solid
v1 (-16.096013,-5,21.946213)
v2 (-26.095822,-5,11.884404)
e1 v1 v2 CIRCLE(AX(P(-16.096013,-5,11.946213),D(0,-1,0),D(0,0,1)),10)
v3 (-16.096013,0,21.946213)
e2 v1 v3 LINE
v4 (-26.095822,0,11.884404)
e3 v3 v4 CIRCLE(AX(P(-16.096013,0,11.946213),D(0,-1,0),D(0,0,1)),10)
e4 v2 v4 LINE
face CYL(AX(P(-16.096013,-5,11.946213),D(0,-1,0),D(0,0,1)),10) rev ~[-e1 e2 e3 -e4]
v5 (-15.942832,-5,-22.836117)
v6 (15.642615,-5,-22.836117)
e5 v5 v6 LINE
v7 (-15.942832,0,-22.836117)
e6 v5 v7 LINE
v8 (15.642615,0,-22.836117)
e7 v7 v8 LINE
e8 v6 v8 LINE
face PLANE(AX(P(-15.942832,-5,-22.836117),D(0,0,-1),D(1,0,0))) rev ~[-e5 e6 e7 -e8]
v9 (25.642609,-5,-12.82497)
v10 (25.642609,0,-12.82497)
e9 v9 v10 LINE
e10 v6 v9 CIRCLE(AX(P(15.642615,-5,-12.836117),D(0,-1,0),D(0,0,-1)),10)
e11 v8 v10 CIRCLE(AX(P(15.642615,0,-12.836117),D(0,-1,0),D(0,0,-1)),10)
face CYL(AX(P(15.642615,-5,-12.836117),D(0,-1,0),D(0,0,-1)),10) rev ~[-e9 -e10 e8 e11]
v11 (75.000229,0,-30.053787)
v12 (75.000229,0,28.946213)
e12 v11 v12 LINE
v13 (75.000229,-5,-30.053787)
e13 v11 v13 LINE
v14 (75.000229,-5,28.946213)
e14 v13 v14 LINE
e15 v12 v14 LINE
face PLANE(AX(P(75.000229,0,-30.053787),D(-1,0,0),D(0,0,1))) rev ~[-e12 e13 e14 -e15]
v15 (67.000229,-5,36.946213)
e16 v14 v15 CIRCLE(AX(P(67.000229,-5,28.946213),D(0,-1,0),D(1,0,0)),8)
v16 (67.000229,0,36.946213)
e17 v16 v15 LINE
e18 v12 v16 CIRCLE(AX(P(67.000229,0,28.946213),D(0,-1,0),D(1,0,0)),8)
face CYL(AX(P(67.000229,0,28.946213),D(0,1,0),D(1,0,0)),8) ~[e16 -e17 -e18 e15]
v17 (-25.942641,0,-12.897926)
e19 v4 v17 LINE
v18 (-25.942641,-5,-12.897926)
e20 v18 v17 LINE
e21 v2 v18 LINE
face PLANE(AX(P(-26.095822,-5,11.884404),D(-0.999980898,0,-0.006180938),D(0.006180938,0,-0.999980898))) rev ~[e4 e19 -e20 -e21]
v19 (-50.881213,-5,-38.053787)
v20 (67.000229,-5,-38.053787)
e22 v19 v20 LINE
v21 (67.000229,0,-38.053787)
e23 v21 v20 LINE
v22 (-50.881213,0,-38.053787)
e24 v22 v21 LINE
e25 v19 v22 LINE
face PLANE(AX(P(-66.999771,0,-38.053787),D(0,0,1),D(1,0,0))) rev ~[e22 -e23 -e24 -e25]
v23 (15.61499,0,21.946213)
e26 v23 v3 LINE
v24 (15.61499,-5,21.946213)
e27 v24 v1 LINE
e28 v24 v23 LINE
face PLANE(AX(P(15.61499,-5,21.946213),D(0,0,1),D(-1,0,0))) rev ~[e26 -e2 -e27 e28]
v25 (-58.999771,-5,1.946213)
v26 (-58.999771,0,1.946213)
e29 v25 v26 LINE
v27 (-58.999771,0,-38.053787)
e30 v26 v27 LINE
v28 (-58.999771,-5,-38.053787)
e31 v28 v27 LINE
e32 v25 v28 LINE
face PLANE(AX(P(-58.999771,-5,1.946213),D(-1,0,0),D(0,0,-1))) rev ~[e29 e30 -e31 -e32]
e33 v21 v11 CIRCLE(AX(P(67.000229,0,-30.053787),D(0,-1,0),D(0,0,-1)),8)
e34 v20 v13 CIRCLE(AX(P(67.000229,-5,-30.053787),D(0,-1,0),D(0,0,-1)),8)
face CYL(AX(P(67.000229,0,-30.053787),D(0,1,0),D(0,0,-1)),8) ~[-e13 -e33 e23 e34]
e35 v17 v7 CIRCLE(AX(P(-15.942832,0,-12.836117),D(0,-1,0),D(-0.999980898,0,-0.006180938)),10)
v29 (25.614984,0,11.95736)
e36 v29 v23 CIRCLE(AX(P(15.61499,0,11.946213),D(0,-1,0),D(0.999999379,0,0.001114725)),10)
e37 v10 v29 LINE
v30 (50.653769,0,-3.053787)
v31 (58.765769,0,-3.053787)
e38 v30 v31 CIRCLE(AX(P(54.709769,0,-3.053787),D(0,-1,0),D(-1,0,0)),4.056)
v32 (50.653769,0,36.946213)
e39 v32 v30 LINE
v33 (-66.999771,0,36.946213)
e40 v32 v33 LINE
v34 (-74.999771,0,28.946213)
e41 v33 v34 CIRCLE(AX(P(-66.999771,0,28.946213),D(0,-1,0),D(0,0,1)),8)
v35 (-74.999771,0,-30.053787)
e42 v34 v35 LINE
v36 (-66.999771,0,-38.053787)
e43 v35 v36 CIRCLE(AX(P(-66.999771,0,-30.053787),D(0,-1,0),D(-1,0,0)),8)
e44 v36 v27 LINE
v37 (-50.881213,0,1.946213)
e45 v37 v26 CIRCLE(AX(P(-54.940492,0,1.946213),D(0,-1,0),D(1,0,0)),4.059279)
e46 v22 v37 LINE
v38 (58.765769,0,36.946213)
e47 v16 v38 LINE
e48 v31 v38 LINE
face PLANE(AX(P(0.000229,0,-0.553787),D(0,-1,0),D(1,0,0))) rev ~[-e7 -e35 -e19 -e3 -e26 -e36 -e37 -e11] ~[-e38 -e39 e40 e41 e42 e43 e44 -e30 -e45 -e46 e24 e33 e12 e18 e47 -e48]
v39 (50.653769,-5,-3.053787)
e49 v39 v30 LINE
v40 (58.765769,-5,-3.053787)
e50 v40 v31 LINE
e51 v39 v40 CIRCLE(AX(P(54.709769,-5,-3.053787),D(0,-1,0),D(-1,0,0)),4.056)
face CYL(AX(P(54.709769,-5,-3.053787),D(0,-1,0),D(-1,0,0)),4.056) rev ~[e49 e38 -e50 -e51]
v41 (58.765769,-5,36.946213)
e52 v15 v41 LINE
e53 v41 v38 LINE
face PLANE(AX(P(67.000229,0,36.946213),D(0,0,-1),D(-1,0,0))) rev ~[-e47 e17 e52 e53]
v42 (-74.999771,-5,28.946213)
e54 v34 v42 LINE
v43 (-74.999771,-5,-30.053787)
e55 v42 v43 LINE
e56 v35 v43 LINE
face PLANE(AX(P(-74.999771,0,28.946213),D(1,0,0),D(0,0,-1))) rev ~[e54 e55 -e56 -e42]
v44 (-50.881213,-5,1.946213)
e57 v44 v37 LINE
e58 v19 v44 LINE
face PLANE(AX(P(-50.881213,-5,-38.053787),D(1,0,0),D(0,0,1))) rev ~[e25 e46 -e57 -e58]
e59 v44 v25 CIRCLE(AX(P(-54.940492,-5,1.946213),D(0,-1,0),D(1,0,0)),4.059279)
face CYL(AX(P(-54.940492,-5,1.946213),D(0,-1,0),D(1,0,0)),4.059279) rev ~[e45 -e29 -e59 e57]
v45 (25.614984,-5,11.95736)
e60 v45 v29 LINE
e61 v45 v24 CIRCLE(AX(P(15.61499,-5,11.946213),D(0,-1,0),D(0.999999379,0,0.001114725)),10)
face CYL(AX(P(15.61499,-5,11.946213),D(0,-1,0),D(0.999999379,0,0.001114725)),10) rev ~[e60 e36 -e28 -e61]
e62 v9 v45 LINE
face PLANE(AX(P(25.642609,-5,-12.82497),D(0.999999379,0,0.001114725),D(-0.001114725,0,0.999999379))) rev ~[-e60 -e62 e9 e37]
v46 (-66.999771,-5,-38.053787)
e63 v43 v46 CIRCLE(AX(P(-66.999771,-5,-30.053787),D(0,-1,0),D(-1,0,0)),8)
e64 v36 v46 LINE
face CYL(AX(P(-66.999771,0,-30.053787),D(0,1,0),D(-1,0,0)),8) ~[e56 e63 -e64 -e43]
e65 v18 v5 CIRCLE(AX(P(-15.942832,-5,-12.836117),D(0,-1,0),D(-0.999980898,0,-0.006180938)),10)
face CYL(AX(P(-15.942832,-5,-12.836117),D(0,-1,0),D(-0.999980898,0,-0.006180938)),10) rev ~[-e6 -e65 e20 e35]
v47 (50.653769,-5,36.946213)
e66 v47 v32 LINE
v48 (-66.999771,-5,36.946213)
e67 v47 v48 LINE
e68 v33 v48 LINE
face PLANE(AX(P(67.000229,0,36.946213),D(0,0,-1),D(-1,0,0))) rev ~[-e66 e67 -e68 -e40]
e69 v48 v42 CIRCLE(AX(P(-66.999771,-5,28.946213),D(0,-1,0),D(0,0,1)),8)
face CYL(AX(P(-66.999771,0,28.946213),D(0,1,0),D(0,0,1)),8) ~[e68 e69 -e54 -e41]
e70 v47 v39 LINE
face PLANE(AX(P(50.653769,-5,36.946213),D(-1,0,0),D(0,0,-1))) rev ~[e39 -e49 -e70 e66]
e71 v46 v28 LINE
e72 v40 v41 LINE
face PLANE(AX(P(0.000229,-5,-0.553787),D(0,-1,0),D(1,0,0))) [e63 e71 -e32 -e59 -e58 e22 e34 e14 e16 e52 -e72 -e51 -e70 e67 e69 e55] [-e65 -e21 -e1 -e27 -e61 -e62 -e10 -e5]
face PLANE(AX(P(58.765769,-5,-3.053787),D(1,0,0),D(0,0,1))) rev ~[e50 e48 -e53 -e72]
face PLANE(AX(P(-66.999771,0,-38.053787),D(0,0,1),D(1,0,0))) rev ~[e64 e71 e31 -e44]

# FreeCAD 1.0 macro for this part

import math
import FreeCAD as App
import Part
import Sketcher
from FreeCAD import Vector

doc = App.newDocument("Part")
body = doc.addObject("PartDesign::Body", "Body")

sketch1 = body.newObject("Sketcher::SketchObject", "Sketch")
sketch1.AttachmentSupport = (doc.getObject("XZ_Plane"), [""])
sketch1.MapMode = "FlatFace"
sketch1.addGeometry(Part.ArcOfCircle(Part.Circle(Vector(-66.999771, 28.946213, 0), Vector(0, 0, 1), 8), math.radians(90), math.radians(180)), False)
sketch1.addGeometry(Part.LineSegment(Vector(-74.999771, 28.946213, 0), Vector(-74.999771, -30.053787, 0)), False)
sketch1.addGeometry(Part.ArcOfCircle(Part.Circle(Vector(-66.999771, -30.053787, 0), Vector(0, 0, 1), 8), math.radians(180), math.radians(270)), False)
sketch1.addGeometry(Part.LineSegment(Vector(-66.999771, -38.053787, 0), Vector(67.000229, -38.053787, 0)), False)
sketch1.addGeometry(Part.ArcOfCircle(Part.Circle(Vector(67.000229, -30.053787, 0), Vector(0, 0, 1), 8), math.radians(-90), math.radians(0)), False)
sketch1.addGeometry(Part.LineSegment(Vector(75.000229, -30.053787, 0), Vector(75.000229, 28.946213, 0)), False)
sketch1.addGeometry(Part.ArcOfCircle(Part.Circle(Vector(67.000229, 28.946213, 0), Vector(0, 0, 1), 8), math.radians(0), math.radians(90)), False)
sketch1.addGeometry(Part.LineSegment(Vector(67.000229, 36.946213, 0), Vector(-66.999771, 36.946213, 0)), False)
sketch1.addConstraint(Sketcher.Constraint("Tangent", 0, 2, 1, 1))
sketch1.addConstraint(Sketcher.Constraint("Tangent", 1, 2, 2, 1))
sketch1.addConstraint(Sketcher.Constraint("Tangent", 2, 2, 3, 1))
sketch1.addConstraint(Sketcher.Constraint("Tangent", 3, 2, 4, 1))
sketch1.addConstraint(Sketcher.Constraint("Tangent", 4, 2, 5, 1))
sketch1.addConstraint(Sketcher.Constraint("Tangent", 5, 2, 6, 1))
sketch1.addConstraint(Sketcher.Constraint("Tangent", 6, 2, 7, 1))
sketch1.addConstraint(Sketcher.Constraint("Tangent", 7, 2, 0, 1))
sketch1.addConstraint(Sketcher.Constraint("Vertical", 1))
sketch1.addConstraint(Sketcher.Constraint("Horizontal", 3))
sketch1.addConstraint(Sketcher.Constraint("Vertical", 5))
sketch1.addConstraint(Sketcher.Constraint("Horizontal", 7))
sketch1.addConstraint(Sketcher.Constraint("Equal", 0, 2))
sketch1.addConstraint(Sketcher.Constraint("Equal", 2, 4))
sketch1.addConstraint(Sketcher.Constraint("Equal", 4, 6))
sketch1.addConstraint(Sketcher.Constraint("Radius", 0, 8.0))
sketch1.addConstraint(Sketcher.Constraint("DistanceX", 3, 1, 3, 2, 134.0))
sketch1.addConstraint(Sketcher.Constraint("DistanceY", 1, 2, 1, 1, 59.0))
sketch1.addConstraint(Sketcher.Constraint("DistanceX", 0, 3, -1, 1, 66.999771))
sketch1.addConstraint(Sketcher.Constraint("DistanceY", -1, 1, 0, 3, 28.946213))
pad1 = body.newObject("PartDesign::Pad", "Pad")
pad1.Profile = sketch1
pad1.Length = 5

sketch2 = body.newObject("Sketcher::SketchObject", "Sketch001")
sketch2.AttachmentSupport = (doc.getObject("XZ_Plane"), [""])
sketch2.MapMode = "FlatFace"
sketch2.AttachmentOffset = App.Placement(Vector(0, 0, 5), App.Rotation())
sketch2.addGeometry(Part.LineSegment(Vector(-58.999771, 1.946213, 0), Vector(-58.999771, -38.053787, 0)), False)
sketch2.addGeometry(Part.LineSegment(Vector(-58.999771, -38.053787, 0), Vector(-50.881213, -38.053787, 0)), False)
sketch2.addGeometry(Part.LineSegment(Vector(-50.881213, -38.053787, 0), Vector(-50.881213, 1.946213, 0)), False)
sketch2.addGeometry(Part.ArcOfCircle(Part.Circle(Vector(-54.940492, 1.946213, 0), Vector(0, 0, 1), 4.059279), math.radians(0), math.radians(180)), False)
sketch2.addConstraint(Sketcher.Constraint("Coincident", 0, 2, 1, 1))
sketch2.addConstraint(Sketcher.Constraint("Coincident", 1, 2, 2, 1))
sketch2.addConstraint(Sketcher.Constraint("Tangent", 2, 2, 3, 1))
sketch2.addConstraint(Sketcher.Constraint("Tangent", 3, 2, 0, 1))
sketch2.addConstraint(Sketcher.Constraint("Vertical", 0))
sketch2.addConstraint(Sketcher.Constraint("Horizontal", 1))
sketch2.addConstraint(Sketcher.Constraint("Vertical", 2))
sketch2.addConstraint(Sketcher.Constraint("DistanceY", 0, 2, 0, 1, 40.0))
sketch2.addConstraint(Sketcher.Constraint("Radius", 3, 4.059279))
sketch2.addConstraint(Sketcher.Constraint("DistanceX", 0, 2, -1, 1, 58.999771))
sketch2.addConstraint(Sketcher.Constraint("DistanceY", -1, 1, 3, 3, 1.946213))
pocket1 = body.newObject("PartDesign::Pocket", "Pocket")
pocket1.Profile = sketch2
pocket1.Length = 25

sketch3 = body.newObject("Sketcher::SketchObject", "Sketch002")
sketch3.AttachmentSupport = (doc.getObject("XZ_Plane"), [""])
sketch3.MapMode = "FlatFace"
sketch3.AttachmentOffset = App.Placement(Vector(0, 0, 5), App.Rotation())
sketch3.addGeometry(Part.LineSegment(Vector(58.765769, -3.053787, 0), Vector(58.765769, 36.946213, 0)), False)
sketch3.addGeometry(Part.LineSegment(Vector(58.765769, 36.946213, 0), Vector(50.653769, 36.946213, 0)), False)
sketch3.addGeometry(Part.LineSegment(Vector(50.653769, 36.946213, 0), Vector(50.653769, -3.053787, 0)), False)
sketch3.addGeometry(Part.ArcOfCircle(Part.Circle(Vector(54.709769, -3.053787, 0), Vector(0, 0, 1), 4.056), math.radians(180), math.radians(360)), False)
sketch3.addConstraint(Sketcher.Constraint("Coincident", 0, 2, 1, 1))
sketch3.addConstraint(Sketcher.Constraint("Coincident", 1, 2, 2, 1))
sketch3.addConstraint(Sketcher.Constraint("Tangent", 2, 2, 3, 1))
sketch3.addConstraint(Sketcher.Constraint("Tangent", 3, 2, 0, 1))
sketch3.addConstraint(Sketcher.Constraint("Vertical", 0))
sketch3.addConstraint(Sketcher.Constraint("Horizontal", 1))
sketch3.addConstraint(Sketcher.Constraint("Vertical", 2))
sketch3.addConstraint(Sketcher.Constraint("DistanceY", 0, 1, 0, 2, 40.0))
sketch3.addConstraint(Sketcher.Constraint("Radius", 3, 4.056))
sketch3.addConstraint(Sketcher.Constraint("DistanceX", -1, 1, 3, 3, 54.709769))
sketch3.addConstraint(Sketcher.Constraint("DistanceY", 3, 3, -1, 1, 3.053787))
pocket2 = body.newObject("PartDesign::Pocket", "Pocket001")
pocket2.Profile = sketch3
pocket2.Length = 73

sketch4 = body.newObject("Sketcher::SketchObject", "Sketch003")
sketch4.AttachmentSupport = (doc.getObject("XZ_Plane"), [""])
sketch4.MapMode = "FlatFace"
sketch4.AttachmentOffset = App.Placement(Vector(0, 0, 5), App.Rotation())
sketch4.addGeometry(Part.ArcOfCircle(Part.Circle(Vector(15.61499, 11.946213, 0), Vector(0, 0, 1), 10), math.radians(0.063869), math.radians(90)), False)
sketch4.addGeometry(Part.LineSegment(Vector(15.61499, 21.946213, 0), Vector(-16.096013, 21.946213, 0)), False)
sketch4.addGeometry(Part.ArcOfCircle(Part.Circle(Vector(-16.096013, 11.946213, 0), Vector(0, 0, 1), 10), math.radians(90), math.radians(180.354144)), False)
sketch4.addGeometry(Part.LineSegment(Vector(-26.095822, 11.884404, 0), Vector(-25.942641, -12.897926, 0)), False)
sketch4.addGeometry(Part.ArcOfCircle(Part.Circle(Vector(-15.942832, -12.836117, 0), Vector(0, 0, 1), 10), math.radians(-179.645856), math.radians(-90)), False)
sketch4.addGeometry(Part.LineSegment(Vector(-15.942832, -22.836117, 0), Vector(15.642615, -22.836117, 0)), False)
sketch4.addGeometry(Part.ArcOfCircle(Part.Circle(Vector(15.642615, -12.836117, 0), Vector(0, 0, 1), 10), math.radians(-90), math.radians(0.063869)), False)
sketch4.addGeometry(Part.LineSegment(Vector(25.642609, -12.82497, 0), Vector(25.614984, 11.95736, 0)), False)
sketch4.addConstraint(Sketcher.Constraint("Tangent", 0, 2, 1, 1))
sketch4.addConstraint(Sketcher.Constraint("Tangent", 1, 2, 2, 1))
sketch4.addConstraint(Sketcher.Constraint("Tangent", 2, 2, 3, 1))
sketch4.addConstraint(Sketcher.Constraint("Tangent", 3, 2, 4, 1))
sketch4.addConstraint(Sketcher.Constraint("Tangent", 4, 2, 5, 1))
sketch4.addConstraint(Sketcher.Constraint("Tangent", 5, 2, 6, 1))
sketch4.addConstraint(Sketcher.Constraint("Tangent", 6, 2, 7, 1))
sketch4.addConstraint(Sketcher.Constraint("Tangent", 7, 2, 0, 1))
sketch4.addConstraint(Sketcher.Constraint("Horizontal", 1))
sketch4.addConstraint(Sketcher.Constraint("Horizontal", 5))
sketch4.addConstraint(Sketcher.Constraint("Equal", 0, 2))
sketch4.addConstraint(Sketcher.Constraint("Equal", 2, 4))
sketch4.addConstraint(Sketcher.Constraint("Equal", 4, 6))
sketch4.addConstraint(Sketcher.Constraint("Radius", 0, 10.0))
sketch4.addConstraint(Sketcher.Constraint("DistanceX", 1, 2, 1, 1, 31.711003))
sketch4.addConstraint(Sketcher.Constraint("DistanceX", 5, 1, 5, 2, 31.585448))
sketch4.addConstraint(Sketcher.Constraint("DistanceX", -1, 1, 0, 3, 15.61499))
sketch4.addConstraint(Sketcher.Constraint("DistanceX", 3, 2, -1, 1, 25.942641))
sketch4.addConstraint(Sketcher.Constraint("DistanceY", 6, 2, -1, 1, 12.82497))
sketch4.addConstraint(Sketcher.Constraint("DistanceY", -1, 1, 7, 2, 11.95736))
pocket3 = body.newObject("PartDesign::Pocket", "Pocket002")
pocket3.Profile = sketch4
pocket3.Length = 25

doc.recompute()
